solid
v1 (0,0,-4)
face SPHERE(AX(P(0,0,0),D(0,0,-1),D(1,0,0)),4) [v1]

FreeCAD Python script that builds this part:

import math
import FreeCAD as App
import Part
import Sketcher

V = App.Vector

doc = App.newDocument("Part")
body = doc.addObject("PartDesign::Body", "Body")

# Sketch on XZ plane
sketch1 = doc.addObject("Sketcher::SketchObject", "Sketch")
body.addObject(sketch1)
sketch1.AttachmentSupport = (doc.XZ_Plane, [""])
sketch1.MapMode = "FlatFace"
sketch1.addGeometry([
    Part.LineSegment(V(0, -4, 0), V(0, 4, 0)),
    Part.ArcOfCircle(Part.Circle(V(0, 0, 0), V(0, 0, 1), 4), math.radians(-90), math.radians(90)),
], False)
sketch1.addConstraint([
    Sketcher.Constraint("Coincident", 0, 1, 1, 1),
    Sketcher.Constraint("Coincident", 1, 2, 0, 2),
    Sketcher.Constraint("Vertical", 0),
    Sketcher.Constraint("Coincident", 1, 3, -1, 1),
    Sketcher.Constraint("PointOnObject", 0, 1, -2),
    Sketcher.Constraint("Radius", 1, 4.0),
])
revolution = doc.addObject("PartDesign::Revolution", "Revolution")
body.addObject(revolution)
revolution.Profile = sketch1
revolution.ReferenceAxis = (sketch1, ["V_Axis"])
revolution.Angle = 360

doc.recompute()
